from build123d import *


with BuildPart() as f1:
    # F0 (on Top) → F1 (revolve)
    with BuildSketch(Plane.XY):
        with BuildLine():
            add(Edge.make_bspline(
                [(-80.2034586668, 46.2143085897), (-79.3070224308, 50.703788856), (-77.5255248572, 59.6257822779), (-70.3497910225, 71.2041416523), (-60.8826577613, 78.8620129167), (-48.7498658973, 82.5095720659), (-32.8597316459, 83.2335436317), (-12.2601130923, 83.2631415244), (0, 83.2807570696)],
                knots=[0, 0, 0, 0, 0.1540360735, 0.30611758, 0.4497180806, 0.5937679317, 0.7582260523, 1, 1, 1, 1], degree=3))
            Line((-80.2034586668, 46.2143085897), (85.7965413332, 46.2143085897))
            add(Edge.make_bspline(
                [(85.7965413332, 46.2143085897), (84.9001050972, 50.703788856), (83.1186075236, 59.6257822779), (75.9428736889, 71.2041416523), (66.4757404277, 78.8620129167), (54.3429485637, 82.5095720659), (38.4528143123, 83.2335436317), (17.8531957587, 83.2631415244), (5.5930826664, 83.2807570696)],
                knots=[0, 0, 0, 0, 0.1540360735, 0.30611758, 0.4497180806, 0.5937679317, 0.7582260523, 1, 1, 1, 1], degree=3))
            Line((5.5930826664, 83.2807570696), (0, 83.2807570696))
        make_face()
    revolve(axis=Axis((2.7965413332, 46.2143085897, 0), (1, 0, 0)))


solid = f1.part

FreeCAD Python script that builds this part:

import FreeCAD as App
import Part
import Sketcher

V = App.Vector

doc = App.newDocument("Part")
body = doc.addObject("PartDesign::Body", "Body")

# Sketch on XY plane
sketch1 = body.newObject("Sketcher::SketchObject", "Sketch")
sketch1.AttachmentSupport = (doc.getObject("XY_Plane"), [""])
sketch1.MapMode = "FlatFace"
sketch1.addGeometry(Part.BSplineCurve([V(-80.203459, 46.214309, 0), V(-79.307022, 50.703789, 0), V(-77.525525, 59.625782, 0), V(-70.349791, 71.204142, 0), V(-60.882658, 78.862013, 0), V(-48.749866, 82.509572, 0), V(-32.859732, 83.233544, 0), V(-12.260113, 83.263142, 0), V(0, 83.280757, 0)], [4, 1, 1, 1, 1, 1, 4], [0, 0.154036074, 0.30611758, 0.449718081, 0.593767932, 0.758226052, 1], False, 3, [1, 1, 1, 1, 1, 1, 1, 1, 1], False), False)
sketch1.addGeometry(Part.LineSegment(V(-80.203459, 46.214309, 0), V(85.796541, 46.214309, 0)), False)
sketch1.addGeometry(Part.BSplineCurve([V(85.796541, 46.214309, 0), V(84.900105, 50.703789, 0), V(83.118608, 59.625782, 0), V(75.942874, 71.204142, 0), V(66.47574, 78.862013, 0), V(54.342949, 82.509572, 0), V(38.452814, 83.233544, 0), V(17.853196, 83.263142, 0), V(5.593083, 83.280757, 0)], [4, 1, 1, 1, 1, 1, 4], [0, 0.154036074, 0.30611758, 0.449718081, 0.593767932, 0.758226052, 1], False, 3, [1, 1, 1, 1, 1, 1, 1, 1, 1], False), False)
sketch1.addGeometry(Part.LineSegment(V(5.593083, 83.280757, 0), V(0, 83.280757, 0)), False)
sketch1.addGeometry(Part.LineSegment(V(-80.203459, 46.214309, 0), V(85.796541, 46.214309, 0)), True)  # axis
sketch1.addConstraint(Sketcher.Constraint("Block", 0))
sketch1.addConstraint(Sketcher.Constraint("Block", 2))
sketch1.addConstraint(Sketcher.Constraint("Coincident", 0, 1, 1, 1))
sketch1.addConstraint(Sketcher.Constraint("Coincident", 1, 2, 2, 1))
sketch1.addConstraint(Sketcher.Constraint("Coincident", 2, 2, 3, 1))
sketch1.addConstraint(Sketcher.Constraint("Coincident", 3, 2, 0, 2))
sketch1.addConstraint(Sketcher.Constraint("Horizontal", 4))
sketch1.addConstraint(Sketcher.Constraint("Coincident", 4, 2, 1, 2))
sketch1.addConstraint(Sketcher.Constraint("DistanceX", 4, 1, 4, 2, 166.0))
revolution = body.newObject("PartDesign::Revolution", "Revolution")
revolution.Profile = sketch1
revolution.ReferenceAxis = (sketch1, ["Axis0"])
revolution.Angle = 360

doc.recompute()
